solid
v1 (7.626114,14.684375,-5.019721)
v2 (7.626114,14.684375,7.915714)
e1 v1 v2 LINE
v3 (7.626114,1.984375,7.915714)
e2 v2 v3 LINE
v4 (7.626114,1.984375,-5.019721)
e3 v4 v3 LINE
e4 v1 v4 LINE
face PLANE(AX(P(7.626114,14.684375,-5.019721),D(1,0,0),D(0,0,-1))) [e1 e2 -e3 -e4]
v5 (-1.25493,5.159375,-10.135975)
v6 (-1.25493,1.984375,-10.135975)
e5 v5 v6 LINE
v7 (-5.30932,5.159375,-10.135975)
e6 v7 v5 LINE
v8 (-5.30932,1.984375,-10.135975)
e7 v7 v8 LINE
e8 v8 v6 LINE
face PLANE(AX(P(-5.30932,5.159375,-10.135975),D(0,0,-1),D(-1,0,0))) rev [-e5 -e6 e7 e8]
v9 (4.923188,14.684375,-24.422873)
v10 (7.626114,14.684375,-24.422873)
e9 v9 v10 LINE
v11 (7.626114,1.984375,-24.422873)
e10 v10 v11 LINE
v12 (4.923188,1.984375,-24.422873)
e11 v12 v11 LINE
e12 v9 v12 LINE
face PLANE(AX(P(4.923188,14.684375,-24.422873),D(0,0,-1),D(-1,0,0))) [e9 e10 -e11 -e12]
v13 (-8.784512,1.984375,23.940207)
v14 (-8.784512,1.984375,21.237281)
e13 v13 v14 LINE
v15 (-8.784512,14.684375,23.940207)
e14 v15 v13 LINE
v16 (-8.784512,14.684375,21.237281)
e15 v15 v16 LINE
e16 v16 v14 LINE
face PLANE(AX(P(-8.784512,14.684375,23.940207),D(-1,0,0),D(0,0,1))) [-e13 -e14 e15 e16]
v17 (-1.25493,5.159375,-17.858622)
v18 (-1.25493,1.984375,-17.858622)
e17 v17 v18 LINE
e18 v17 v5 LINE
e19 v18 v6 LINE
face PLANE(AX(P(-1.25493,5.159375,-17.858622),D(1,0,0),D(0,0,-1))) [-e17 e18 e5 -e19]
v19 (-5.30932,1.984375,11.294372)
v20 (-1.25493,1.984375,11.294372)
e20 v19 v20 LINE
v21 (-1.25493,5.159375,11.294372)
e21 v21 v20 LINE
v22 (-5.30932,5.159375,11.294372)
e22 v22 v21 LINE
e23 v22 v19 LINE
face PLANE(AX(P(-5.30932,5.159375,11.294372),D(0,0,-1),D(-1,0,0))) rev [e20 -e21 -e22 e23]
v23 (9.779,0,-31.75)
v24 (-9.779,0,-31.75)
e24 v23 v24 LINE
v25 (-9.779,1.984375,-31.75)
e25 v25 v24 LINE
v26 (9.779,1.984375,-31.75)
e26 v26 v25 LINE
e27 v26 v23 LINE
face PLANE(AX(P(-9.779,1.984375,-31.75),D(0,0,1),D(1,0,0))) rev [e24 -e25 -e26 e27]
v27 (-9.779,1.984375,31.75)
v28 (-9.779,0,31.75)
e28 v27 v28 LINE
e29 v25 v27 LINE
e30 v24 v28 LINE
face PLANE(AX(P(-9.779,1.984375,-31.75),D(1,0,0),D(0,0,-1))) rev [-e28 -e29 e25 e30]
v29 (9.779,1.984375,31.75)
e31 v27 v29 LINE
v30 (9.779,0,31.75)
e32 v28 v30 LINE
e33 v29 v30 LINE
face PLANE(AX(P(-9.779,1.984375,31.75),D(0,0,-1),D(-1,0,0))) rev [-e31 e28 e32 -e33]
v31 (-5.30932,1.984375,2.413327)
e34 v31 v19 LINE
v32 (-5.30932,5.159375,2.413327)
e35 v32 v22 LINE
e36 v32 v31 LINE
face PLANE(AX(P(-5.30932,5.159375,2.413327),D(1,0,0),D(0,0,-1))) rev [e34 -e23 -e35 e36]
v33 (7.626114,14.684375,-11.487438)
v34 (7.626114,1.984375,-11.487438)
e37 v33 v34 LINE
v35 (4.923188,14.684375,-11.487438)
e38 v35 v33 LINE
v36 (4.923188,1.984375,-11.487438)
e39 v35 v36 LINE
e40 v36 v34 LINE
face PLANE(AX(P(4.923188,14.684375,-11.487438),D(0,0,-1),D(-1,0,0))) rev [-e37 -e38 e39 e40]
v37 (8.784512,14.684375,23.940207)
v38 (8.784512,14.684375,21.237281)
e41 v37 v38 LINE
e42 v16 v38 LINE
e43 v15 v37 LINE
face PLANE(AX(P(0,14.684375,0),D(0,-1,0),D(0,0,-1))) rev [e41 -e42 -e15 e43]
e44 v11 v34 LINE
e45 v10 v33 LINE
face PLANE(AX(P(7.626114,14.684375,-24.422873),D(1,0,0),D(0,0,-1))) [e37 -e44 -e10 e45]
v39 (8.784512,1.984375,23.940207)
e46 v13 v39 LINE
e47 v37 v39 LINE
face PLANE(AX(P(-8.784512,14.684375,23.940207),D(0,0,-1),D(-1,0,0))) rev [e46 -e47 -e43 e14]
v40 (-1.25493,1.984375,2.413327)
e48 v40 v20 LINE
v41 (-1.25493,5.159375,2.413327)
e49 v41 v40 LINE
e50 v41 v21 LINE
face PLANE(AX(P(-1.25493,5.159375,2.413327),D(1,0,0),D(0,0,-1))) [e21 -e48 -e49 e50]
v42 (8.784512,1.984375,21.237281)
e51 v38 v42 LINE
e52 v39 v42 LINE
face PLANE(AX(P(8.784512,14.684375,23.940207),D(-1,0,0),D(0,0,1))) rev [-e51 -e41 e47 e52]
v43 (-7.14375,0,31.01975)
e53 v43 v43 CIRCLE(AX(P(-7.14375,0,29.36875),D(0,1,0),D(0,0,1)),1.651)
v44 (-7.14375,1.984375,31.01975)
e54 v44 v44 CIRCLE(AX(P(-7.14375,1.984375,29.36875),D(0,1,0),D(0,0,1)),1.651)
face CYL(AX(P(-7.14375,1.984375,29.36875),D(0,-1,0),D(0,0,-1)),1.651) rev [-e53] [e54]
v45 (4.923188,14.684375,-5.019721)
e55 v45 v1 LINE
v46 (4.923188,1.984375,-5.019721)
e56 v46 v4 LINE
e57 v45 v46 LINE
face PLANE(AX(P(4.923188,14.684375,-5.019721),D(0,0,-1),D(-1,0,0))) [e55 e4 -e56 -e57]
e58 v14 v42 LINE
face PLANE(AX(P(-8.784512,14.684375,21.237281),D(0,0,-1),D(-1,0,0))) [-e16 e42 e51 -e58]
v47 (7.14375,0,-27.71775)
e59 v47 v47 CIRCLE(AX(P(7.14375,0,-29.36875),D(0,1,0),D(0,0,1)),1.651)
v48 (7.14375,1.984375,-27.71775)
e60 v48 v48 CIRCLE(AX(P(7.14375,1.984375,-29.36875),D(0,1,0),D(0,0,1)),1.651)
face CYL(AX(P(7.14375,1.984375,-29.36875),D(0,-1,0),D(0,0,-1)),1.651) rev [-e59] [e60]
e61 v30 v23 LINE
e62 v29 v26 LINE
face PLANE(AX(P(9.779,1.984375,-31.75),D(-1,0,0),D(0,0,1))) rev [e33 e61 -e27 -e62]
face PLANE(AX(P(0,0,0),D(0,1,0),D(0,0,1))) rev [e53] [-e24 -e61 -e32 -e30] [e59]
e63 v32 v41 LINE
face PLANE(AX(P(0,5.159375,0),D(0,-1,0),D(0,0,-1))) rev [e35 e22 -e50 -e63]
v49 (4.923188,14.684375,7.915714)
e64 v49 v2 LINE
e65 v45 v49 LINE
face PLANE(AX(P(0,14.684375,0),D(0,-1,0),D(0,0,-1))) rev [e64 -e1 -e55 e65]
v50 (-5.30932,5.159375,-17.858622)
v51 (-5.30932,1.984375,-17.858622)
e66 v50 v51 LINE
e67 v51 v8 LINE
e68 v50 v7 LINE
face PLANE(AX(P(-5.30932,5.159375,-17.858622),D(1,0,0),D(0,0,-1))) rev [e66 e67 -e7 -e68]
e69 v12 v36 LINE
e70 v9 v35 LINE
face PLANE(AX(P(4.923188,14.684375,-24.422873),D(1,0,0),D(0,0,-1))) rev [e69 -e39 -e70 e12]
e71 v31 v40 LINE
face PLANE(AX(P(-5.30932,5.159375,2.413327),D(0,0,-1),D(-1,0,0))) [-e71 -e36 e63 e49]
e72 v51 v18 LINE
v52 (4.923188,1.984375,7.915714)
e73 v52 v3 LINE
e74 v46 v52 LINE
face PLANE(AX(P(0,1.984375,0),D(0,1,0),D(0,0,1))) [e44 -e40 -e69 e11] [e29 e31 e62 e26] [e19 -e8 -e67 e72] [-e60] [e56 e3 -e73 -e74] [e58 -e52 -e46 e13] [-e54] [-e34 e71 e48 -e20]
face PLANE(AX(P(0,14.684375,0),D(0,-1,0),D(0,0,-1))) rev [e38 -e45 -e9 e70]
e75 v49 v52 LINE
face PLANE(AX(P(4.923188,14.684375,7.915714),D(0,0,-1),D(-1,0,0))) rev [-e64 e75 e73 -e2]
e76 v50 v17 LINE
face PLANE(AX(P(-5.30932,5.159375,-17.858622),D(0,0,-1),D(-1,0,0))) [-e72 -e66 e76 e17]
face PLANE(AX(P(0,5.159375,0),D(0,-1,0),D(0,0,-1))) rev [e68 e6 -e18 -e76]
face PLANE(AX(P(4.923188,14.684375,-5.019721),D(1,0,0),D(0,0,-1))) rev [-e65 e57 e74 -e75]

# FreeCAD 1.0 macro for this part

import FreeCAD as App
import Part
import Sketcher
Q = App.Units.Quantity

doc = App.newDocument("Part")
params = doc.addObject("Spreadsheet::Sheet", "Params")
for row, (alias, value) in enumerate([
    ("sketch1_diameter", "0.13 in"),
    ("sketch1_height", "2.5 in"),
    ("sketch1_width", "0.77 in"),
    ("pad1_length", "0.078125 in"),
    ("pad2_length", "0.5 in"),
    ("pad3_length", "0.125 in"),
], start=1):
    params.set(f"A{row}", alias)
    params.set(f"B{row}", "=" + value)
    params.setAlias(f"B{row}", alias)

body = doc.addObject("PartDesign::Body", "Body")

# Sketch on XZ plane
sketch1 = body.newObject("Sketcher::SketchObject", "Sketch")
sketch1.AttachmentSupport = (doc.getObject("XZ_Plane"), [""])
sketch1.MapMode = "FlatFace"
sketch1.addGeometry([
    Part.LineSegment(App.Vector(-9.779, -31.75, 0), App.Vector(-9.779, 31.75, 0)),  # 0
    Part.LineSegment(App.Vector(-9.779, 31.75, 0), App.Vector(9.779, 31.75, 0)),  # 1
    Part.LineSegment(App.Vector(9.779, 31.75, 0), App.Vector(9.779, -31.75, 0)),  # 2
    Part.LineSegment(App.Vector(9.779, -31.75, 0), App.Vector(-9.779, -31.75, 0)),  # 3
    Part.Circle(App.Vector(-7.14375, 29.36875, 0), App.Vector(0, 0, 1), 1.651),  # 4
    Part.Circle(App.Vector(7.14375, -29.36875, 0), App.Vector(0, 0, 1), 1.651),  # 5
], False)
sketch1.addConstraint([
    Sketcher.Constraint("Coincident", 0, 2, 1, 1),
    Sketcher.Constraint("Coincident", 1, 2, 2, 1),
    Sketcher.Constraint("Coincident", 2, 2, 3, 1),
    Sketcher.Constraint("Coincident", 3, 2, 0, 1),
    Sketcher.Constraint("Vertical", 0),
    Sketcher.Constraint("Horizontal", 1),
    Sketcher.Constraint("Vertical", 2),
    Sketcher.Constraint("Horizontal", 3),
    Sketcher.Constraint("Equal", 4, 5),
    Sketcher.Constraint("Symmetric", 4, 3, 5, 3, -1, 1),
    Sketcher.Constraint("Symmetric", 0, 2, 2, 2, -1, 1),
    Sketcher.Constraint("Diameter", 4, Q("0.13 in")),
    Sketcher.Constraint("DistanceY", 0, 1, 0, 2, Q("2.5 in")),
    Sketcher.Constraint("DistanceX", 1, 1, 1, 2, Q("0.77 in")),
    Sketcher.Constraint("DistanceX", 4, 3, -1, 1, Q("0.28125 in")),
    Sketcher.Constraint("DistanceY", -1, 1, 4, 3, Q("1.15625 in")),
])
sketch1.setExpression("Constraints[11]", "Params.sketch1_diameter")
sketch1.setExpression("Constraints[12]", "Params.sketch1_height")
sketch1.setExpression("Constraints[13]", "Params.sketch1_width")
pad1 = body.newObject("PartDesign::Pad", "Pad")
pad1.Profile = sketch1
pad1.setExpression("Length", "Params.pad1_length")
pad1.Reversed = True

# Sketch on XZ plane
sketch2 = body.newObject("Sketcher::SketchObject", "Sketch001")
sketch2.AttachmentSupport = (doc.getObject("XZ_Plane"), [""])
sketch2.MapMode = "FlatFace"
sketch2.AttachmentOffset = App.Placement(App.Vector(0, 0, -0.078125 * 25.4), App.Rotation())
sketch2.addGeometry([
    Part.LineSegment(App.Vector(-8.784512, 21.237281, 0), App.Vector(-8.784512, 23.940207, 0)),  # 0
    Part.LineSegment(App.Vector(-8.784512, 23.940207, 0), App.Vector(8.784512, 23.940207, 0)),  # 1
    Part.LineSegment(App.Vector(8.784512, 23.940207, 0), App.Vector(8.784512, 21.237281, 0)),  # 2
    Part.LineSegment(App.Vector(8.784512, 21.237281, 0), App.Vector(-8.784512, 21.237281, 0)),  # 3
    Part.LineSegment(App.Vector(4.923188, -24.422873, 0), App.Vector(4.923188, -11.487438, 0)),  # 4
    Part.LineSegment(App.Vector(4.923188, -11.487438, 0), App.Vector(7.626114, -11.487438, 0)),  # 5
    Part.LineSegment(App.Vector(7.626114, -11.487438, 0), App.Vector(7.626114, -24.422873, 0)),  # 6
    Part.LineSegment(App.Vector(7.626114, -24.422873, 0), App.Vector(4.923188, -24.422873, 0)),  # 7
    Part.LineSegment(App.Vector(4.923188, -5.019721, 0), App.Vector(4.923188, 7.915714, 0)),  # 8
    Part.LineSegment(App.Vector(4.923188, 7.915714, 0), App.Vector(7.626114, 7.915714, 0)),  # 9
    Part.LineSegment(App.Vector(7.626114, 7.915714, 0), App.Vector(7.626114, -5.019721, 0)),  # 10
    Part.LineSegment(App.Vector(7.626114, -5.019721, 0), App.Vector(4.923188, -5.019721, 0)),  # 11
], False)
sketch2.addConstraint([
    Sketcher.Constraint("Coincident", 0, 2, 1, 1),
    Sketcher.Constraint("Coincident", 1, 2, 2, 1),
    Sketcher.Constraint("Coincident", 2, 2, 3, 1),
    Sketcher.Constraint("Coincident", 3, 2, 0, 1),
    Sketcher.Constraint("Coincident", 4, 2, 5, 1),
    Sketcher.Constraint("Coincident", 5, 2, 6, 1),
    Sketcher.Constraint("Coincident", 6, 2, 7, 1),
    Sketcher.Constraint("Coincident", 7, 2, 4, 1),
    Sketcher.Constraint("Coincident", 8, 2, 9, 1),
    Sketcher.Constraint("Coincident", 9, 2, 10, 1),
    Sketcher.Constraint("Coincident", 10, 2, 11, 1),
    Sketcher.Constraint("Coincident", 11, 2, 8, 1),
    Sketcher.Constraint("Vertical", 0),
    Sketcher.Constraint("Horizontal", 1),
    Sketcher.Constraint("Vertical", 2),
    Sketcher.Constraint("Horizontal", 3),
    Sketcher.Constraint("Vertical", 4),
    Sketcher.Constraint("Horizontal", 5),
    Sketcher.Constraint("Vertical", 6),
    Sketcher.Constraint("Horizontal", 7),
    Sketcher.Constraint("Vertical", 8),
    Sketcher.Constraint("Horizontal", 9),
    Sketcher.Constraint("Vertical", 10),
    Sketcher.Constraint("Horizontal", 11),
    Sketcher.Constraint("Vertical", 7, 2, 8, 2),
    Sketcher.Constraint("Vertical", 6, 2, 9, 2),
    Sketcher.Constraint("Equal", 11, 0),
    Sketcher.Constraint("Equal", 6, 8),
    Sketcher.Constraint("DistanceX", 3, 2, 4, 2, 13.707699),
    Sketcher.Constraint("DistanceX", 1, 1, 1, 2, 17.569023),
    Sketcher.Constraint("DistanceX", 5, 1, 5, 2, 2.702927),
    Sketcher.Constraint("DistanceY", 4, 1, 4, 2, 12.935435),
    Sketcher.Constraint("DistanceX", 0, 2, -1, 1, 8.784512),
    Sketcher.Constraint("DistanceY", -1, 1, 2, 2, 21.237281),
    Sketcher.Constraint("DistanceY", 4, 2, -1, 1, 11.487438),
    Sketcher.Constraint("DistanceY", 10, 2, -1, 1, 5.019721),
])
pad2 = body.newObject("PartDesign::Pad", "Pad001")
pad2.Profile = sketch2
pad2.setExpression("Length", "Params.pad2_length")
pad2.Reversed = True

# Sketch on XZ plane
sketch3 = body.newObject("Sketcher::SketchObject", "Sketch002")
sketch3.AttachmentSupport = (doc.getObject("XZ_Plane"), [""])
sketch3.MapMode = "FlatFace"
sketch3.AttachmentOffset = App.Placement(App.Vector(0, 0, -0.078125 * 25.4), App.Rotation())
sketch3.addGeometry([
    Part.LineSegment(App.Vector(-5.30932, -17.858622, 0), App.Vector(-5.30932, -10.135975, 0)),  # 0
    Part.LineSegment(App.Vector(-5.30932, -10.135975, 0), App.Vector(-1.25493, -10.135975, 0)),  # 1
    Part.LineSegment(App.Vector(-1.25493, -10.135975, 0), App.Vector(-1.25493, -17.858622, 0)),  # 2
    Part.LineSegment(App.Vector(-1.25493, -17.858622, 0), App.Vector(-5.30932, -17.858622, 0)),  # 3
    Part.LineSegment(App.Vector(-5.30932, 2.413327, 0), App.Vector(-5.30932, 11.294372, 0)),  # 4
    Part.LineSegment(App.Vector(-5.30932, 11.294372, 0), App.Vector(-1.25493, 11.294372, 0)),  # 5
    Part.LineSegment(App.Vector(-1.25493, 11.294372, 0), App.Vector(-1.25493, 2.413327, 0)),  # 6
    Part.LineSegment(App.Vector(-1.25493, 2.413327, 0), App.Vector(-5.30932, 2.413327, 0)),  # 7
], False)
sketch3.addConstraint([
    Sketcher.Constraint("Coincident", 0, 2, 1, 1),
    Sketcher.Constraint("Coincident", 1, 2, 2, 1),
    Sketcher.Constraint("Coincident", 2, 2, 3, 1),
    Sketcher.Constraint("Coincident", 3, 2, 0, 1),
    Sketcher.Constraint("Coincident", 4, 2, 5, 1),
    Sketcher.Constraint("Coincident", 5, 2, 6, 1),
    Sketcher.Constraint("Coincident", 6, 2, 7, 1),
    Sketcher.Constraint("Coincident", 7, 2, 4, 1),
    Sketcher.Constraint("Vertical", 0),
    Sketcher.Constraint("Horizontal", 1),
    Sketcher.Constraint("Vertical", 2),
    Sketcher.Constraint("Horizontal", 3),
    Sketcher.Constraint("Vertical", 4),
    Sketcher.Constraint("Horizontal", 5),
    Sketcher.Constraint("Vertical", 6),
    Sketcher.Constraint("Horizontal", 7),
    Sketcher.Constraint("Vertical", 3, 2, 4, 2),
    Sketcher.Constraint("Vertical", 2, 2, 5, 2),
    Sketcher.Constraint("DistanceX", 1, 1, 1, 2, 4.05439),
    Sketcher.Constraint("DistanceY", 0, 1, 0, 2, 7.722648),
    Sketcher.Constraint("DistanceY", 4, 1, 4, 2, 8.881045),
    Sketcher.Constraint("DistanceX", 0, 2, -1, 1, 5.30932),
    Sketcher.Constraint("DistanceY", -1, 1, 4, 2, 11.294372),
    Sketcher.Constraint("DistanceY", 2, 2, 6, 2, 20.27195),
])
pad3 = body.newObject("PartDesign::Pad", "Pad002")
pad3.Profile = sketch3
pad3.setExpression("Length", "Params.pad3_length")
pad3.Reversed = True

doc.recompute()
